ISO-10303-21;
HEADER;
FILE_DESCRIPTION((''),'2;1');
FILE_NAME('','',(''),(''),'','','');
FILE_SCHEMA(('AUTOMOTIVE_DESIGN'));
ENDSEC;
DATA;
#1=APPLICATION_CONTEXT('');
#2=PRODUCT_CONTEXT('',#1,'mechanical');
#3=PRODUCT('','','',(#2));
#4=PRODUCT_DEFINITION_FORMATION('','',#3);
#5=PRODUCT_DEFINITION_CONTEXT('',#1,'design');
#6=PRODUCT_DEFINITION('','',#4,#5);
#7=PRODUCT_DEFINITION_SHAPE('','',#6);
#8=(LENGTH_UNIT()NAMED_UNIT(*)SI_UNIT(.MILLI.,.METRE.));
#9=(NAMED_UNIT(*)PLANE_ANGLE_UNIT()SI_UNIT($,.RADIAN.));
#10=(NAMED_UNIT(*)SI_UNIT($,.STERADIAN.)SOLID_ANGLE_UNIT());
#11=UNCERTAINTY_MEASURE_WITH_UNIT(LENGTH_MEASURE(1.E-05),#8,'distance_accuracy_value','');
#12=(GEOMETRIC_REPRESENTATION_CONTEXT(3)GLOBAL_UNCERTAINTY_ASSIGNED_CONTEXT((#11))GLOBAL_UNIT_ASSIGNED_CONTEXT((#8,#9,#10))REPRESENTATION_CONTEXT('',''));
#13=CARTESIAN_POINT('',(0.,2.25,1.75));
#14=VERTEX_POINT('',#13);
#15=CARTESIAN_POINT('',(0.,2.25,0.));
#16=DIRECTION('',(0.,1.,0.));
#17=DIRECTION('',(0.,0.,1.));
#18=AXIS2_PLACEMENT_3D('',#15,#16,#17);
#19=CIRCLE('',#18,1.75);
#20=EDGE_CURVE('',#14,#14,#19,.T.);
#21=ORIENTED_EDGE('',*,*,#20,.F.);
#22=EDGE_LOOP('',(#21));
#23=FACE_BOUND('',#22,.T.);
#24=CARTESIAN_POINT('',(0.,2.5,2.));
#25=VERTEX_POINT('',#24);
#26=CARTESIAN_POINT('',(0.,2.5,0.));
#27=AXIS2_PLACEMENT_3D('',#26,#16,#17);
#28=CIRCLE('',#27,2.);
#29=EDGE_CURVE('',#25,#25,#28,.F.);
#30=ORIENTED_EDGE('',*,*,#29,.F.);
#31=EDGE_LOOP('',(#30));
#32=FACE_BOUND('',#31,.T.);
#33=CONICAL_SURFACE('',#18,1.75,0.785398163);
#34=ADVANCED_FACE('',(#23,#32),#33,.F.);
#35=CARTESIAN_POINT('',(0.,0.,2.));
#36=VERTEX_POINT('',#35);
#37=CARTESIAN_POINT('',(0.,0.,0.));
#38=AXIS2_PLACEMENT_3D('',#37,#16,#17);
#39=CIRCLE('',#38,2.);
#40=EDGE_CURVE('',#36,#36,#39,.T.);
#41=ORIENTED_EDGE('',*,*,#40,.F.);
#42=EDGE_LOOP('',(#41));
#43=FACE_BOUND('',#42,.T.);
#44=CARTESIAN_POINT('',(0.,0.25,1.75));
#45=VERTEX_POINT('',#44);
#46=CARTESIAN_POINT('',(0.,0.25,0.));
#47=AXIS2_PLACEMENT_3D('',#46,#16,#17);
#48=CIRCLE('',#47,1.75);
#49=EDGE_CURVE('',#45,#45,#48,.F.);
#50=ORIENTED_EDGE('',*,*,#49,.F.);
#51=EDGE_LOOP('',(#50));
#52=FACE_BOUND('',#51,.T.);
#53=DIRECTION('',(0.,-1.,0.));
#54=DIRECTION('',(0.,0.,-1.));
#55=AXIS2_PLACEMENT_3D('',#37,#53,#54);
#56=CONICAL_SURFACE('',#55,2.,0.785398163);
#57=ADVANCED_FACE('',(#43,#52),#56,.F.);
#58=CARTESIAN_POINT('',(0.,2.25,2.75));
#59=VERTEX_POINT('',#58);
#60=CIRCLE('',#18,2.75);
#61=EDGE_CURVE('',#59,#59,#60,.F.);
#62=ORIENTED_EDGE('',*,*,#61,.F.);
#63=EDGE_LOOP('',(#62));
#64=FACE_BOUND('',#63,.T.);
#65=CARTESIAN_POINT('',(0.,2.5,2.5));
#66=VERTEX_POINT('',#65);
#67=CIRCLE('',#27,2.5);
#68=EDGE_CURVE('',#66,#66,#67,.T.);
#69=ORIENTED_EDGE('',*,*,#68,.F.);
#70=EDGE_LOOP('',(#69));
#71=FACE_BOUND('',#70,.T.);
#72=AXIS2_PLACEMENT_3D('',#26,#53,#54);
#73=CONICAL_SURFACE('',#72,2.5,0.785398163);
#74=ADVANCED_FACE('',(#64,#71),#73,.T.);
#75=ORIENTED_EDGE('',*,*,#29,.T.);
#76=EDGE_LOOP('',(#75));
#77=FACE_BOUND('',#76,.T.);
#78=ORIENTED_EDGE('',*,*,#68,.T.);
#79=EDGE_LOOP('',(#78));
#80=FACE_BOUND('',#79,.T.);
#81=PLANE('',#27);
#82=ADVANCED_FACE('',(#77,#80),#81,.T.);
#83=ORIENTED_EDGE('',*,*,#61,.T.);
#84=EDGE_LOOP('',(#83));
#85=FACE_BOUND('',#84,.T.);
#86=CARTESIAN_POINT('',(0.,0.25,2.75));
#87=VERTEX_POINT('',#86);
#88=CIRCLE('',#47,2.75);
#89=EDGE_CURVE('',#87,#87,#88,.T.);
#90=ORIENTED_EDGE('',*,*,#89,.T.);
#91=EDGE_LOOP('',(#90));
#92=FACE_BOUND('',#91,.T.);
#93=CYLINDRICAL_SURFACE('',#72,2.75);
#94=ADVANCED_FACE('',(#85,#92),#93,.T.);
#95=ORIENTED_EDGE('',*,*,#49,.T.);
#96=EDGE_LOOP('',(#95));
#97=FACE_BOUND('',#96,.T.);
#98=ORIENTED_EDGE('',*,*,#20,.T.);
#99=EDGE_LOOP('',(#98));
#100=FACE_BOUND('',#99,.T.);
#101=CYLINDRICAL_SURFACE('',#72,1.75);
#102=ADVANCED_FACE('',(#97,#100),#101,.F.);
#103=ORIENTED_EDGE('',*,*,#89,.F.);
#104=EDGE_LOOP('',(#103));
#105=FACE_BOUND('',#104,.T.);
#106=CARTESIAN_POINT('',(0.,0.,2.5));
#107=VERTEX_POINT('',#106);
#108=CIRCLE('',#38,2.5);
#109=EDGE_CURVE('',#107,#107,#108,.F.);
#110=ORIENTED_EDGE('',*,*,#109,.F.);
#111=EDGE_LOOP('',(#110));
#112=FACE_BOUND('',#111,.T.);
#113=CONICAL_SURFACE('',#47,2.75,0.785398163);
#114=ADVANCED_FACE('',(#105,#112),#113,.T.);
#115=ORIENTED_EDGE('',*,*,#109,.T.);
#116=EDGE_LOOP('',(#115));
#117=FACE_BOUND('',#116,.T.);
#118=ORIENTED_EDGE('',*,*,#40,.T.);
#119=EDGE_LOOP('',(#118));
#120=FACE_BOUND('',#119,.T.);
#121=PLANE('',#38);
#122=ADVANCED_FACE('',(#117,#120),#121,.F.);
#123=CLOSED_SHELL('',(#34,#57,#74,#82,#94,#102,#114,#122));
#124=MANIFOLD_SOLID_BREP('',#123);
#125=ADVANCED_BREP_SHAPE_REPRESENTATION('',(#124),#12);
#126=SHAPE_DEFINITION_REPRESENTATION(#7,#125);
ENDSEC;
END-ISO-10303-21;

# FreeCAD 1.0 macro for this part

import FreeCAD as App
import Part
import Sketcher

V = App.Vector
Q = App.Units.Quantity


def edges_at(feature, points):
    """Names of the edges that pass closest to the given points."""
    edges = feature.Shape.Edges
    near = lambda p: min(range(len(edges)), key=lambda i: edges[i].distToShape(Part.Vertex(*p))[0])
    return sorted({f"Edge{near(p) + 1}" for p in points})

doc = App.newDocument("Part")
body = doc.addObject("PartDesign::Body", "Body")

# Sketch on XZ plane
sketch1 = body.newObject("Sketcher::SketchObject", "Sketch")
sketch1.AttachmentSupport = (doc.getObject("XZ_Plane"), [""])
sketch1.MapMode = "FlatFace"
sketch1.addGeometry([
    Part.Circle(V(0, 0, 0), V(0, 0, 1), 2.8),
    Part.Circle(V(0, 0, 0), V(0, 0, 1), 1.8),
], False)
sketch1.addConstraint([
    Sketcher.Constraint("Coincident", 0, 3, -1, 1),
    Sketcher.Constraint("Coincident", 1, 3, -1, 1),
    Sketcher.Constraint("Diameter", 0, Q("5.5 mm")),
    Sketcher.Constraint("Diameter", 1, Q("3.5 mm")),
])
pad1 = body.newObject("PartDesign::Pad", "Pad")
pad1.Profile = sketch1
pad1.Length = 2.5
pad1.Reversed = True
doc.recompute()

chamfer = body.newObject("PartDesign::Chamfer", "Chamfer")
chamfer.Base = (pad1, edges_at(pad1, [(-2.75, 2.5, 0)]))
chamfer.Size = 0.25
doc.recompute()

chamfer2 = body.newObject("PartDesign::Chamfer", "Chamfer001")
chamfer2.Base = (chamfer, edges_at(chamfer, [(-2.75, 0, 0)]))
chamfer2.Size = 0.25
doc.recompute()

chamfer3 = body.newObject("PartDesign::Chamfer", "Chamfer002")
chamfer3.Base = (chamfer2, edges_at(chamfer2, [(-1.75, 2.5, 0)]))
chamfer3.Size = 0.25
doc.recompute()

chamfer4 = body.newObject("PartDesign::Chamfer", "Chamfer003")
chamfer4.Base = (chamfer3, edges_at(chamfer3, [(-1.75, 0, 0)]))
chamfer4.Size = 0.25

doc.recompute()
